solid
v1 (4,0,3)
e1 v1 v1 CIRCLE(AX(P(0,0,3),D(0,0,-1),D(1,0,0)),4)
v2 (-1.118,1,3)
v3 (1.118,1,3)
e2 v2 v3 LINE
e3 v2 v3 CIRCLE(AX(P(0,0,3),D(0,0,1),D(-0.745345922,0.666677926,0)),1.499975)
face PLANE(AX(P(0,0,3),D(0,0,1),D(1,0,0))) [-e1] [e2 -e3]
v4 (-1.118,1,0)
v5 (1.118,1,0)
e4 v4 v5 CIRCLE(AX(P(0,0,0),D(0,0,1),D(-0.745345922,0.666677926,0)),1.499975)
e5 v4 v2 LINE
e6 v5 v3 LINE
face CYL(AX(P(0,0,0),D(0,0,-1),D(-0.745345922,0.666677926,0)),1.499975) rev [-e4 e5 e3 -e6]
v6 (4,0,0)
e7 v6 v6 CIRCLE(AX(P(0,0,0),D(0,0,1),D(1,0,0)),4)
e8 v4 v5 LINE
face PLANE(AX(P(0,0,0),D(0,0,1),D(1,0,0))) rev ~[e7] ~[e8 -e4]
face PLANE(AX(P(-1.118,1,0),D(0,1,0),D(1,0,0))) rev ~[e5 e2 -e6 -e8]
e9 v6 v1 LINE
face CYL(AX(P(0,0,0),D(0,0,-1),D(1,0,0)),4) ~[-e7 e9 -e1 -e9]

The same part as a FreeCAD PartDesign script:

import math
import FreeCAD as App
import Part
import Sketcher

doc = App.newDocument("Part")
body = doc.addObject("PartDesign::Body", "Body")

# Sketch on XY plane
sketch1 = body.newObject("Sketcher::SketchObject", "Sketch")
sketch1.AttachmentSupport = (doc.getObject("XY_Plane"), [""])
sketch1.MapMode = "FlatFace"
sketch1.addGeometry(Part.Circle(App.Vector(0, 0, 0), App.Vector(0, 0, 1), 4), False)
sketch1.addGeometry(Part.ArcOfCircle(Part.Circle(App.Vector(0, 0, 0), App.Vector(0, 0, 1), 1.5), math.radians(138), math.radians(402)), False)
sketch1.addGeometry(Part.LineSegment(App.Vector(-1.1, 1, 0), App.Vector(1.1, 1, 0)), False)
sketch1.addConstraint(Sketcher.Constraint("Coincident", 1, 1, 2, 1))
sketch1.addConstraint(Sketcher.Constraint("Coincident", 2, 2, 1, 2))
sketch1.addConstraint(Sketcher.Constraint("Horizontal", 2))
sketch1.addConstraint(Sketcher.Constraint("Coincident", 0, 3, -1, 1))
sketch1.addConstraint(Sketcher.Constraint("Coincident", 1, 3, -1, 1))
sketch1.addConstraint(Sketcher.Constraint("Diameter", 0, 8.0))
sketch1.addConstraint(Sketcher.Constraint("Radius", 1, 1.5))
sketch1.addConstraint(Sketcher.Constraint("DistanceY", -1, 1, 1, 1, 1.0))
pad1 = body.newObject("PartDesign::Pad", "Pad")
pad1.Profile = sketch1
pad1.Length = 3

doc.recompute()
